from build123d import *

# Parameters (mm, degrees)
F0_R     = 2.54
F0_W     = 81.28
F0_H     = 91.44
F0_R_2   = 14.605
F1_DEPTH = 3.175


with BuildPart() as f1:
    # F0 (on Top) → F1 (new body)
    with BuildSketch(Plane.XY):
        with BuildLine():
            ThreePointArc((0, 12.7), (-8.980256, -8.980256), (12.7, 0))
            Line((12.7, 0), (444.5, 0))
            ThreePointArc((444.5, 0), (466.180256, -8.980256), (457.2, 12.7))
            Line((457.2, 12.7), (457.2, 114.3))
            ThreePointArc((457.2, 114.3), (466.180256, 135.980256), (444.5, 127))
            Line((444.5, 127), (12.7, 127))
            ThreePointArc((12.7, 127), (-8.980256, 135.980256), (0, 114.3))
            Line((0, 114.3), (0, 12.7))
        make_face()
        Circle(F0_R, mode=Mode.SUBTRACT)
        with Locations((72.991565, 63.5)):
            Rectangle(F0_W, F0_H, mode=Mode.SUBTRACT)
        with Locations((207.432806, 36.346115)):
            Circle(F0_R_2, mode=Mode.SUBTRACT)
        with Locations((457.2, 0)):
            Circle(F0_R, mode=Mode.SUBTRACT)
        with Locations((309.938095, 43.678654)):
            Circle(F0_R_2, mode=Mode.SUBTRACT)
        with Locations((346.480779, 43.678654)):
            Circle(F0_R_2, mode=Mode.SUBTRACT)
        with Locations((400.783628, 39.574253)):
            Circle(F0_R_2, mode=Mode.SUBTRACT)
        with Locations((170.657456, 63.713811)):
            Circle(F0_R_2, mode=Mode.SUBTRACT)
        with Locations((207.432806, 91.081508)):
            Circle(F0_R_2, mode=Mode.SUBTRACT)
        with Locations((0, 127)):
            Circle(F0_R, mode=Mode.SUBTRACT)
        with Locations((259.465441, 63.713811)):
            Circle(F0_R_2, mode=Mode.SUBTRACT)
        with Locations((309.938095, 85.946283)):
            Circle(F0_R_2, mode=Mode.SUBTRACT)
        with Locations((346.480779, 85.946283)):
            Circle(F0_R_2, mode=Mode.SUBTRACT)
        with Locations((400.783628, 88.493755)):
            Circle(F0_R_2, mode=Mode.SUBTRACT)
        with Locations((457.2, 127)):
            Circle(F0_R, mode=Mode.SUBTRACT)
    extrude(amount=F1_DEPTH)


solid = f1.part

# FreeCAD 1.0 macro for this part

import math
import FreeCAD as App
import Part
import Sketcher

V = App.Vector
Q = App.Units.Quantity


def add_polygon(sketch, points):
    """Adds a closed chain of lines whose ends are joined by coincident constraints."""
    first, n = sketch.GeometryCount, len(points)
    for a, b in zip(points, points[1:] + points[:1]):
        sketch.addGeometry(Part.LineSegment(App.Vector(*a, 0), App.Vector(*b, 0)), False)
    for i in range(n):
        sketch.addConstraint(Sketcher.Constraint("Coincident", first + i, 2, first + (i + 1) % n, 1))

doc = App.newDocument("Part")
body = doc.addObject("PartDesign::Body", "Body")

# Sketch on XY plane
sketch1 = body.newObject("Sketcher::SketchObject", "Sketch")
sketch1.AttachmentSupport = (doc.getObject("XY_Plane"), [""])
sketch1.MapMode = "FlatFace"
sketch1.addGeometry(Part.ArcOfCircle(Part.Circle(V(0, 0, 0), V(0, 0, 1), 12.7), math.radians(90), math.radians(360)), False)  # 0
sketch1.addGeometry(Part.LineSegment(V(12.7, 0, 0), V(444.5, 0, 0)), False)  # 1
sketch1.addGeometry(Part.ArcOfCircle(Part.Circle(V(457.2, 0, 0), V(0, 0, 1), 12.7), math.radians(-180), math.radians(90)), False)  # 2
sketch1.addGeometry(Part.LineSegment(V(457.2, 12.7, 0), V(457.2, 114.3, 0)), False)  # 3
sketch1.addGeometry(Part.ArcOfCircle(Part.Circle(V(457.2, 127, 0), V(0, 0, 1), 12.7), math.radians(-90), math.radians(180)), False)  # 4
sketch1.addGeometry(Part.LineSegment(V(444.5, 127, 0), V(12.7, 127, 0)), False)  # 5
sketch1.addGeometry(Part.ArcOfCircle(Part.Circle(V(0, 127, 0), V(0, 0, 1), 12.7), math.radians(0), math.radians(270)), False)  # 6
sketch1.addGeometry(Part.LineSegment(V(0, 114.3, 0), V(0, 12.7, 0)), False)  # 7
sketch1.addGeometry(Part.Circle(V(0, 0, 0), V(0, 0, 1), 2.5), False)  # 8
sketch1.addGeometry(Part.Circle(V(207.4, 36.3, 0), V(0, 0, 1), 14.6), False)  # 9
sketch1.addGeometry(Part.Circle(V(457.2, 0, 0), V(0, 0, 1), 2.5), False)  # 10
sketch1.addGeometry(Part.Circle(V(309.9, 43.7, 0), V(0, 0, 1), 14.6), False)  # 11
sketch1.addGeometry(Part.Circle(V(346.5, 43.7, 0), V(0, 0, 1), 14.6), False)  # 12
sketch1.addGeometry(Part.Circle(V(400.8, 39.6, 0), V(0, 0, 1), 14.6), False)  # 13
add_polygon(sketch1, [(113.6, 17.8), (32.4, 17.8), (32.4, 109.2), (113.6, 109.2)])  # lines 14-17
sketch1.addGeometry(Part.Circle(V(170.7, 63.7, 0), V(0, 0, 1), 14.6), False)  # 18
sketch1.addGeometry(Part.Circle(V(207.4, 91.1, 0), V(0, 0, 1), 14.6), False)  # 19
sketch1.addGeometry(Part.Circle(V(0, 127, 0), V(0, 0, 1), 2.5), False)  # 20
sketch1.addGeometry(Part.Circle(V(259.5, 63.7, 0), V(0, 0, 1), 14.6), False)  # 21
sketch1.addGeometry(Part.Circle(V(309.9, 85.9, 0), V(0, 0, 1), 14.6), False)  # 22
sketch1.addGeometry(Part.Circle(V(346.5, 85.9, 0), V(0, 0, 1), 14.6), False)  # 23
sketch1.addGeometry(Part.Circle(V(400.8, 88.5, 0), V(0, 0, 1), 14.6), False)  # 24
sketch1.addGeometry(Part.Circle(V(457.2, 127, 0), V(0, 0, 1), 2.5), False)  # 25
sketch1.addConstraint([
    Sketcher.Constraint("Coincident", 0, 2, 1, 1),
    Sketcher.Constraint("Coincident", 1, 2, 2, 1),
    Sketcher.Constraint("Coincident", 2, 2, 3, 1),
    Sketcher.Constraint("Coincident", 3, 2, 4, 1),
    Sketcher.Constraint("Coincident", 4, 2, 5, 1),
    Sketcher.Constraint("Coincident", 5, 2, 6, 1),
    Sketcher.Constraint("Coincident", 6, 2, 7, 1),
    Sketcher.Constraint("Coincident", 7, 2, 0, 1),
    Sketcher.Constraint("Horizontal", 1),
    Sketcher.Constraint("Vertical", 3),
    Sketcher.Constraint("Horizontal", 5),
    Sketcher.Constraint("Vertical", 7),
    Sketcher.Constraint("Horizontal", 14),
    Sketcher.Constraint("Vertical", 15),
    Sketcher.Constraint("Horizontal", 16),
    Sketcher.Constraint("Vertical", 17),
    Sketcher.Constraint("Coincident", 0, 3, -1, 1),
    Sketcher.Constraint("Coincident", 8, 3, -1, 1),
    Sketcher.Constraint("Coincident", 10, 3, 2, 3),
    Sketcher.Constraint("Coincident", 20, 3, 6, 3),
    Sketcher.Constraint("Coincident", 25, 3, 4, 3),
    Sketcher.Constraint("Equal", 0, 2),
    Sketcher.Constraint("Equal", 2, 4),
    Sketcher.Constraint("Equal", 4, 6),
    Sketcher.Constraint("Equal", 8, 10),
    Sketcher.Constraint("Equal", 9, 11),
    Sketcher.Constraint("Equal", 11, 12),
    Sketcher.Constraint("Equal", 12, 13),
    Sketcher.Constraint("Equal", 13, 18),
    Sketcher.Constraint("Equal", 18, 19),
    Sketcher.Constraint("Equal", 10, 20),
    Sketcher.Constraint("Equal", 19, 21),
    Sketcher.Constraint("Equal", 21, 22),
    Sketcher.Constraint("Equal", 22, 23),
    Sketcher.Constraint("Equal", 23, 24),
    Sketcher.Constraint("Equal", 20, 25),
    Sketcher.Constraint("PointOnObject", 2, 3, -1),
    Sketcher.Constraint("PointOnObject", 6, 3, -2),
    Sketcher.Constraint("PointOnObject", 0, 2, -1),
    Sketcher.Constraint("PointOnObject", 6, 2, -2),
    Sketcher.Constraint("Horizontal", 4, 3, 6, 3),
    Sketcher.Constraint("Horizontal", 11, 3, 12, 3),
    Sketcher.Constraint("Horizontal", 18, 3, 21, 3),
    Sketcher.Constraint("Horizontal", 22, 3, 23, 3),
    Sketcher.Constraint("Horizontal", 25, 3, 4, 2),
    Sketcher.Constraint("Vertical", 2, 3, 4, 3),
    Sketcher.Constraint("Vertical", 9, 3, 19, 3),
    Sketcher.Constraint("Vertical", 11, 3, 22, 3),
    Sketcher.Constraint("Vertical", 12, 3, 23, 3),
    Sketcher.Constraint("Vertical", 13, 3, 24, 3),
    Sketcher.Constraint("Vertical", 25, 3, 2, 2),
    Sketcher.Constraint("Diameter", 8, Q("0.2 in")),
    Sketcher.Constraint("Radius", 0, Q("0.5 in")),
    Sketcher.Constraint("Diameter", 9, Q("1.15 in")),
    Sketcher.Constraint("DistanceX", 1, 1, 1, 2, Q("17 in")),
    Sketcher.Constraint("DistanceY", 3, 1, 3, 2, Q("4 in")),
    Sketcher.Constraint("DistanceX", 14, 2, 14, 1, Q("3.2 in")),
    Sketcher.Constraint("DistanceY", 15, 1, 15, 2, Q("3.6 in")),
    Sketcher.Constraint("DistanceY", -1, 1, 14, 2, Q("0.7 in")),
    Sketcher.Constraint("DistanceY", 13, 3, 12, 3, 4.104401),
    Sketcher.Constraint("DistanceY", 13, 3, 24, 3, 48.919502),
    Sketcher.Constraint("DistanceX", -1, 1, 12, 3, 346.480779),
    Sketcher.Constraint("DistanceX", -1, 1, 13, 3, 400.783628),
    Sketcher.Constraint("DistanceY", -1, 1, 18, 3, 63.713811),
    Sketcher.Constraint("DistanceY", -1, 1, 19, 3, 91.081508),
    Sketcher.Constraint("DistanceX", -1, 1, 21, 3, 259.465441),
    Sketcher.Constraint("DistanceX", 9, 3, 11, 3, 102.505289),
    Sketcher.Constraint("DistanceY", 9, 3, 11, 3, 7.332539),
    Sketcher.Constraint("DistanceX", 18, 3, 9, 3, 36.77535),
    Sketcher.Constraint("DistanceY", 11, 3, 22, 3, 42.267629),
    Sketcher.Constraint("DistanceY", 21, 3, 22, 3, 22.232472),
    Sketcher.Constraint("DistanceX", 16, 2, 18, 3, 57.025891),
    Sketcher.Constraint("DistanceX", -1, 1, 9, 3, 207.432806),
])
pad1 = body.newObject("PartDesign::Pad", "Pad")
pad1.Profile = sketch1
pad1.Length = Q("0.125 in")

doc.recompute()
